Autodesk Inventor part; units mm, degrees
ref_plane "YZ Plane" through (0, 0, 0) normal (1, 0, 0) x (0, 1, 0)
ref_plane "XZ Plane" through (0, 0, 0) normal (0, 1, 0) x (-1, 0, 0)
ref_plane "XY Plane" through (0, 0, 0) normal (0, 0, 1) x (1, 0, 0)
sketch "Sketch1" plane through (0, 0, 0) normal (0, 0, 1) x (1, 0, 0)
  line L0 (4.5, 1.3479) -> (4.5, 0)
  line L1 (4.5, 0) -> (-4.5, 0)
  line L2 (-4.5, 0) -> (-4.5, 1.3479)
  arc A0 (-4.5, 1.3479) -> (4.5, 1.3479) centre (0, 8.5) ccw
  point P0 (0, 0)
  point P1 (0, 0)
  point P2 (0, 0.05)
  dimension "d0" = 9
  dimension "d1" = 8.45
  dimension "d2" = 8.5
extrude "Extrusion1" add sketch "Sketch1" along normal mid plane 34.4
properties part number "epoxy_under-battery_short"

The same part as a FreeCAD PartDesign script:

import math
import FreeCAD as App
import Part
import Sketcher
from FreeCAD import Vector
Q = App.Units.Quantity

doc = App.newDocument("Part")
body = doc.addObject("PartDesign::Body", "Body")

sketch1 = body.newObject("Sketcher::SketchObject", "Sketch")
sketch1.AttachmentSupport = (doc.getObject("XY_Plane"), [""])
sketch1.MapMode = "FlatFace"
sketch1.addGeometry(Part.LineSegment(Vector(4.5, 0, 0), Vector(4.5, 1.3, 0)), False)
sketch1.addGeometry(Part.ArcOfCircle(Part.Circle(Vector(0, 8.5, 0), Vector(0, 0, 1), 8.5), math.radians(-122), math.radians(-58)), False)
sketch1.addGeometry(Part.LineSegment(Vector(-4.5, 1.3, 0), Vector(-4.5, 0, 0)), False)
sketch1.addGeometry(Part.LineSegment(Vector(-4.5, 0, 0), Vector(4.5, 0, 0)), False)
sketch1.addConstraint(Sketcher.Constraint("Coincident", 0, 2, 1, 2))
sketch1.addConstraint(Sketcher.Constraint("Coincident", 1, 1, 2, 1))
sketch1.addConstraint(Sketcher.Constraint("Coincident", 2, 2, 3, 1))
sketch1.addConstraint(Sketcher.Constraint("Coincident", 3, 2, 0, 1))
sketch1.addConstraint(Sketcher.Constraint("Vertical", 0))
sketch1.addConstraint(Sketcher.Constraint("Vertical", 2))
sketch1.addConstraint(Sketcher.Constraint("Horizontal", 3))
sketch1.addConstraint(Sketcher.Constraint("Symmetric", 2, 2, 3, 2, -1, 1))
sketch1.addConstraint(Sketcher.Constraint("PointOnObject", 1, 3, -2))
sketch1.addConstraint(Sketcher.Constraint("DistanceX", 3, 1, 3, 2, Q("9 mm")))
sketch1.addConstraint(Sketcher.Constraint("Radius", 1, Q("8.45 mm")))
sketch1.addConstraint(Sketcher.Constraint("DistanceY", -1, 1, 1, 3, Q("8.5 mm")))
pad1 = body.newObject("PartDesign::Pad", "Pad")
pad1.Profile = sketch1
pad1.Length = 34.4
pad1.Midplane = True

doc.recompute()
